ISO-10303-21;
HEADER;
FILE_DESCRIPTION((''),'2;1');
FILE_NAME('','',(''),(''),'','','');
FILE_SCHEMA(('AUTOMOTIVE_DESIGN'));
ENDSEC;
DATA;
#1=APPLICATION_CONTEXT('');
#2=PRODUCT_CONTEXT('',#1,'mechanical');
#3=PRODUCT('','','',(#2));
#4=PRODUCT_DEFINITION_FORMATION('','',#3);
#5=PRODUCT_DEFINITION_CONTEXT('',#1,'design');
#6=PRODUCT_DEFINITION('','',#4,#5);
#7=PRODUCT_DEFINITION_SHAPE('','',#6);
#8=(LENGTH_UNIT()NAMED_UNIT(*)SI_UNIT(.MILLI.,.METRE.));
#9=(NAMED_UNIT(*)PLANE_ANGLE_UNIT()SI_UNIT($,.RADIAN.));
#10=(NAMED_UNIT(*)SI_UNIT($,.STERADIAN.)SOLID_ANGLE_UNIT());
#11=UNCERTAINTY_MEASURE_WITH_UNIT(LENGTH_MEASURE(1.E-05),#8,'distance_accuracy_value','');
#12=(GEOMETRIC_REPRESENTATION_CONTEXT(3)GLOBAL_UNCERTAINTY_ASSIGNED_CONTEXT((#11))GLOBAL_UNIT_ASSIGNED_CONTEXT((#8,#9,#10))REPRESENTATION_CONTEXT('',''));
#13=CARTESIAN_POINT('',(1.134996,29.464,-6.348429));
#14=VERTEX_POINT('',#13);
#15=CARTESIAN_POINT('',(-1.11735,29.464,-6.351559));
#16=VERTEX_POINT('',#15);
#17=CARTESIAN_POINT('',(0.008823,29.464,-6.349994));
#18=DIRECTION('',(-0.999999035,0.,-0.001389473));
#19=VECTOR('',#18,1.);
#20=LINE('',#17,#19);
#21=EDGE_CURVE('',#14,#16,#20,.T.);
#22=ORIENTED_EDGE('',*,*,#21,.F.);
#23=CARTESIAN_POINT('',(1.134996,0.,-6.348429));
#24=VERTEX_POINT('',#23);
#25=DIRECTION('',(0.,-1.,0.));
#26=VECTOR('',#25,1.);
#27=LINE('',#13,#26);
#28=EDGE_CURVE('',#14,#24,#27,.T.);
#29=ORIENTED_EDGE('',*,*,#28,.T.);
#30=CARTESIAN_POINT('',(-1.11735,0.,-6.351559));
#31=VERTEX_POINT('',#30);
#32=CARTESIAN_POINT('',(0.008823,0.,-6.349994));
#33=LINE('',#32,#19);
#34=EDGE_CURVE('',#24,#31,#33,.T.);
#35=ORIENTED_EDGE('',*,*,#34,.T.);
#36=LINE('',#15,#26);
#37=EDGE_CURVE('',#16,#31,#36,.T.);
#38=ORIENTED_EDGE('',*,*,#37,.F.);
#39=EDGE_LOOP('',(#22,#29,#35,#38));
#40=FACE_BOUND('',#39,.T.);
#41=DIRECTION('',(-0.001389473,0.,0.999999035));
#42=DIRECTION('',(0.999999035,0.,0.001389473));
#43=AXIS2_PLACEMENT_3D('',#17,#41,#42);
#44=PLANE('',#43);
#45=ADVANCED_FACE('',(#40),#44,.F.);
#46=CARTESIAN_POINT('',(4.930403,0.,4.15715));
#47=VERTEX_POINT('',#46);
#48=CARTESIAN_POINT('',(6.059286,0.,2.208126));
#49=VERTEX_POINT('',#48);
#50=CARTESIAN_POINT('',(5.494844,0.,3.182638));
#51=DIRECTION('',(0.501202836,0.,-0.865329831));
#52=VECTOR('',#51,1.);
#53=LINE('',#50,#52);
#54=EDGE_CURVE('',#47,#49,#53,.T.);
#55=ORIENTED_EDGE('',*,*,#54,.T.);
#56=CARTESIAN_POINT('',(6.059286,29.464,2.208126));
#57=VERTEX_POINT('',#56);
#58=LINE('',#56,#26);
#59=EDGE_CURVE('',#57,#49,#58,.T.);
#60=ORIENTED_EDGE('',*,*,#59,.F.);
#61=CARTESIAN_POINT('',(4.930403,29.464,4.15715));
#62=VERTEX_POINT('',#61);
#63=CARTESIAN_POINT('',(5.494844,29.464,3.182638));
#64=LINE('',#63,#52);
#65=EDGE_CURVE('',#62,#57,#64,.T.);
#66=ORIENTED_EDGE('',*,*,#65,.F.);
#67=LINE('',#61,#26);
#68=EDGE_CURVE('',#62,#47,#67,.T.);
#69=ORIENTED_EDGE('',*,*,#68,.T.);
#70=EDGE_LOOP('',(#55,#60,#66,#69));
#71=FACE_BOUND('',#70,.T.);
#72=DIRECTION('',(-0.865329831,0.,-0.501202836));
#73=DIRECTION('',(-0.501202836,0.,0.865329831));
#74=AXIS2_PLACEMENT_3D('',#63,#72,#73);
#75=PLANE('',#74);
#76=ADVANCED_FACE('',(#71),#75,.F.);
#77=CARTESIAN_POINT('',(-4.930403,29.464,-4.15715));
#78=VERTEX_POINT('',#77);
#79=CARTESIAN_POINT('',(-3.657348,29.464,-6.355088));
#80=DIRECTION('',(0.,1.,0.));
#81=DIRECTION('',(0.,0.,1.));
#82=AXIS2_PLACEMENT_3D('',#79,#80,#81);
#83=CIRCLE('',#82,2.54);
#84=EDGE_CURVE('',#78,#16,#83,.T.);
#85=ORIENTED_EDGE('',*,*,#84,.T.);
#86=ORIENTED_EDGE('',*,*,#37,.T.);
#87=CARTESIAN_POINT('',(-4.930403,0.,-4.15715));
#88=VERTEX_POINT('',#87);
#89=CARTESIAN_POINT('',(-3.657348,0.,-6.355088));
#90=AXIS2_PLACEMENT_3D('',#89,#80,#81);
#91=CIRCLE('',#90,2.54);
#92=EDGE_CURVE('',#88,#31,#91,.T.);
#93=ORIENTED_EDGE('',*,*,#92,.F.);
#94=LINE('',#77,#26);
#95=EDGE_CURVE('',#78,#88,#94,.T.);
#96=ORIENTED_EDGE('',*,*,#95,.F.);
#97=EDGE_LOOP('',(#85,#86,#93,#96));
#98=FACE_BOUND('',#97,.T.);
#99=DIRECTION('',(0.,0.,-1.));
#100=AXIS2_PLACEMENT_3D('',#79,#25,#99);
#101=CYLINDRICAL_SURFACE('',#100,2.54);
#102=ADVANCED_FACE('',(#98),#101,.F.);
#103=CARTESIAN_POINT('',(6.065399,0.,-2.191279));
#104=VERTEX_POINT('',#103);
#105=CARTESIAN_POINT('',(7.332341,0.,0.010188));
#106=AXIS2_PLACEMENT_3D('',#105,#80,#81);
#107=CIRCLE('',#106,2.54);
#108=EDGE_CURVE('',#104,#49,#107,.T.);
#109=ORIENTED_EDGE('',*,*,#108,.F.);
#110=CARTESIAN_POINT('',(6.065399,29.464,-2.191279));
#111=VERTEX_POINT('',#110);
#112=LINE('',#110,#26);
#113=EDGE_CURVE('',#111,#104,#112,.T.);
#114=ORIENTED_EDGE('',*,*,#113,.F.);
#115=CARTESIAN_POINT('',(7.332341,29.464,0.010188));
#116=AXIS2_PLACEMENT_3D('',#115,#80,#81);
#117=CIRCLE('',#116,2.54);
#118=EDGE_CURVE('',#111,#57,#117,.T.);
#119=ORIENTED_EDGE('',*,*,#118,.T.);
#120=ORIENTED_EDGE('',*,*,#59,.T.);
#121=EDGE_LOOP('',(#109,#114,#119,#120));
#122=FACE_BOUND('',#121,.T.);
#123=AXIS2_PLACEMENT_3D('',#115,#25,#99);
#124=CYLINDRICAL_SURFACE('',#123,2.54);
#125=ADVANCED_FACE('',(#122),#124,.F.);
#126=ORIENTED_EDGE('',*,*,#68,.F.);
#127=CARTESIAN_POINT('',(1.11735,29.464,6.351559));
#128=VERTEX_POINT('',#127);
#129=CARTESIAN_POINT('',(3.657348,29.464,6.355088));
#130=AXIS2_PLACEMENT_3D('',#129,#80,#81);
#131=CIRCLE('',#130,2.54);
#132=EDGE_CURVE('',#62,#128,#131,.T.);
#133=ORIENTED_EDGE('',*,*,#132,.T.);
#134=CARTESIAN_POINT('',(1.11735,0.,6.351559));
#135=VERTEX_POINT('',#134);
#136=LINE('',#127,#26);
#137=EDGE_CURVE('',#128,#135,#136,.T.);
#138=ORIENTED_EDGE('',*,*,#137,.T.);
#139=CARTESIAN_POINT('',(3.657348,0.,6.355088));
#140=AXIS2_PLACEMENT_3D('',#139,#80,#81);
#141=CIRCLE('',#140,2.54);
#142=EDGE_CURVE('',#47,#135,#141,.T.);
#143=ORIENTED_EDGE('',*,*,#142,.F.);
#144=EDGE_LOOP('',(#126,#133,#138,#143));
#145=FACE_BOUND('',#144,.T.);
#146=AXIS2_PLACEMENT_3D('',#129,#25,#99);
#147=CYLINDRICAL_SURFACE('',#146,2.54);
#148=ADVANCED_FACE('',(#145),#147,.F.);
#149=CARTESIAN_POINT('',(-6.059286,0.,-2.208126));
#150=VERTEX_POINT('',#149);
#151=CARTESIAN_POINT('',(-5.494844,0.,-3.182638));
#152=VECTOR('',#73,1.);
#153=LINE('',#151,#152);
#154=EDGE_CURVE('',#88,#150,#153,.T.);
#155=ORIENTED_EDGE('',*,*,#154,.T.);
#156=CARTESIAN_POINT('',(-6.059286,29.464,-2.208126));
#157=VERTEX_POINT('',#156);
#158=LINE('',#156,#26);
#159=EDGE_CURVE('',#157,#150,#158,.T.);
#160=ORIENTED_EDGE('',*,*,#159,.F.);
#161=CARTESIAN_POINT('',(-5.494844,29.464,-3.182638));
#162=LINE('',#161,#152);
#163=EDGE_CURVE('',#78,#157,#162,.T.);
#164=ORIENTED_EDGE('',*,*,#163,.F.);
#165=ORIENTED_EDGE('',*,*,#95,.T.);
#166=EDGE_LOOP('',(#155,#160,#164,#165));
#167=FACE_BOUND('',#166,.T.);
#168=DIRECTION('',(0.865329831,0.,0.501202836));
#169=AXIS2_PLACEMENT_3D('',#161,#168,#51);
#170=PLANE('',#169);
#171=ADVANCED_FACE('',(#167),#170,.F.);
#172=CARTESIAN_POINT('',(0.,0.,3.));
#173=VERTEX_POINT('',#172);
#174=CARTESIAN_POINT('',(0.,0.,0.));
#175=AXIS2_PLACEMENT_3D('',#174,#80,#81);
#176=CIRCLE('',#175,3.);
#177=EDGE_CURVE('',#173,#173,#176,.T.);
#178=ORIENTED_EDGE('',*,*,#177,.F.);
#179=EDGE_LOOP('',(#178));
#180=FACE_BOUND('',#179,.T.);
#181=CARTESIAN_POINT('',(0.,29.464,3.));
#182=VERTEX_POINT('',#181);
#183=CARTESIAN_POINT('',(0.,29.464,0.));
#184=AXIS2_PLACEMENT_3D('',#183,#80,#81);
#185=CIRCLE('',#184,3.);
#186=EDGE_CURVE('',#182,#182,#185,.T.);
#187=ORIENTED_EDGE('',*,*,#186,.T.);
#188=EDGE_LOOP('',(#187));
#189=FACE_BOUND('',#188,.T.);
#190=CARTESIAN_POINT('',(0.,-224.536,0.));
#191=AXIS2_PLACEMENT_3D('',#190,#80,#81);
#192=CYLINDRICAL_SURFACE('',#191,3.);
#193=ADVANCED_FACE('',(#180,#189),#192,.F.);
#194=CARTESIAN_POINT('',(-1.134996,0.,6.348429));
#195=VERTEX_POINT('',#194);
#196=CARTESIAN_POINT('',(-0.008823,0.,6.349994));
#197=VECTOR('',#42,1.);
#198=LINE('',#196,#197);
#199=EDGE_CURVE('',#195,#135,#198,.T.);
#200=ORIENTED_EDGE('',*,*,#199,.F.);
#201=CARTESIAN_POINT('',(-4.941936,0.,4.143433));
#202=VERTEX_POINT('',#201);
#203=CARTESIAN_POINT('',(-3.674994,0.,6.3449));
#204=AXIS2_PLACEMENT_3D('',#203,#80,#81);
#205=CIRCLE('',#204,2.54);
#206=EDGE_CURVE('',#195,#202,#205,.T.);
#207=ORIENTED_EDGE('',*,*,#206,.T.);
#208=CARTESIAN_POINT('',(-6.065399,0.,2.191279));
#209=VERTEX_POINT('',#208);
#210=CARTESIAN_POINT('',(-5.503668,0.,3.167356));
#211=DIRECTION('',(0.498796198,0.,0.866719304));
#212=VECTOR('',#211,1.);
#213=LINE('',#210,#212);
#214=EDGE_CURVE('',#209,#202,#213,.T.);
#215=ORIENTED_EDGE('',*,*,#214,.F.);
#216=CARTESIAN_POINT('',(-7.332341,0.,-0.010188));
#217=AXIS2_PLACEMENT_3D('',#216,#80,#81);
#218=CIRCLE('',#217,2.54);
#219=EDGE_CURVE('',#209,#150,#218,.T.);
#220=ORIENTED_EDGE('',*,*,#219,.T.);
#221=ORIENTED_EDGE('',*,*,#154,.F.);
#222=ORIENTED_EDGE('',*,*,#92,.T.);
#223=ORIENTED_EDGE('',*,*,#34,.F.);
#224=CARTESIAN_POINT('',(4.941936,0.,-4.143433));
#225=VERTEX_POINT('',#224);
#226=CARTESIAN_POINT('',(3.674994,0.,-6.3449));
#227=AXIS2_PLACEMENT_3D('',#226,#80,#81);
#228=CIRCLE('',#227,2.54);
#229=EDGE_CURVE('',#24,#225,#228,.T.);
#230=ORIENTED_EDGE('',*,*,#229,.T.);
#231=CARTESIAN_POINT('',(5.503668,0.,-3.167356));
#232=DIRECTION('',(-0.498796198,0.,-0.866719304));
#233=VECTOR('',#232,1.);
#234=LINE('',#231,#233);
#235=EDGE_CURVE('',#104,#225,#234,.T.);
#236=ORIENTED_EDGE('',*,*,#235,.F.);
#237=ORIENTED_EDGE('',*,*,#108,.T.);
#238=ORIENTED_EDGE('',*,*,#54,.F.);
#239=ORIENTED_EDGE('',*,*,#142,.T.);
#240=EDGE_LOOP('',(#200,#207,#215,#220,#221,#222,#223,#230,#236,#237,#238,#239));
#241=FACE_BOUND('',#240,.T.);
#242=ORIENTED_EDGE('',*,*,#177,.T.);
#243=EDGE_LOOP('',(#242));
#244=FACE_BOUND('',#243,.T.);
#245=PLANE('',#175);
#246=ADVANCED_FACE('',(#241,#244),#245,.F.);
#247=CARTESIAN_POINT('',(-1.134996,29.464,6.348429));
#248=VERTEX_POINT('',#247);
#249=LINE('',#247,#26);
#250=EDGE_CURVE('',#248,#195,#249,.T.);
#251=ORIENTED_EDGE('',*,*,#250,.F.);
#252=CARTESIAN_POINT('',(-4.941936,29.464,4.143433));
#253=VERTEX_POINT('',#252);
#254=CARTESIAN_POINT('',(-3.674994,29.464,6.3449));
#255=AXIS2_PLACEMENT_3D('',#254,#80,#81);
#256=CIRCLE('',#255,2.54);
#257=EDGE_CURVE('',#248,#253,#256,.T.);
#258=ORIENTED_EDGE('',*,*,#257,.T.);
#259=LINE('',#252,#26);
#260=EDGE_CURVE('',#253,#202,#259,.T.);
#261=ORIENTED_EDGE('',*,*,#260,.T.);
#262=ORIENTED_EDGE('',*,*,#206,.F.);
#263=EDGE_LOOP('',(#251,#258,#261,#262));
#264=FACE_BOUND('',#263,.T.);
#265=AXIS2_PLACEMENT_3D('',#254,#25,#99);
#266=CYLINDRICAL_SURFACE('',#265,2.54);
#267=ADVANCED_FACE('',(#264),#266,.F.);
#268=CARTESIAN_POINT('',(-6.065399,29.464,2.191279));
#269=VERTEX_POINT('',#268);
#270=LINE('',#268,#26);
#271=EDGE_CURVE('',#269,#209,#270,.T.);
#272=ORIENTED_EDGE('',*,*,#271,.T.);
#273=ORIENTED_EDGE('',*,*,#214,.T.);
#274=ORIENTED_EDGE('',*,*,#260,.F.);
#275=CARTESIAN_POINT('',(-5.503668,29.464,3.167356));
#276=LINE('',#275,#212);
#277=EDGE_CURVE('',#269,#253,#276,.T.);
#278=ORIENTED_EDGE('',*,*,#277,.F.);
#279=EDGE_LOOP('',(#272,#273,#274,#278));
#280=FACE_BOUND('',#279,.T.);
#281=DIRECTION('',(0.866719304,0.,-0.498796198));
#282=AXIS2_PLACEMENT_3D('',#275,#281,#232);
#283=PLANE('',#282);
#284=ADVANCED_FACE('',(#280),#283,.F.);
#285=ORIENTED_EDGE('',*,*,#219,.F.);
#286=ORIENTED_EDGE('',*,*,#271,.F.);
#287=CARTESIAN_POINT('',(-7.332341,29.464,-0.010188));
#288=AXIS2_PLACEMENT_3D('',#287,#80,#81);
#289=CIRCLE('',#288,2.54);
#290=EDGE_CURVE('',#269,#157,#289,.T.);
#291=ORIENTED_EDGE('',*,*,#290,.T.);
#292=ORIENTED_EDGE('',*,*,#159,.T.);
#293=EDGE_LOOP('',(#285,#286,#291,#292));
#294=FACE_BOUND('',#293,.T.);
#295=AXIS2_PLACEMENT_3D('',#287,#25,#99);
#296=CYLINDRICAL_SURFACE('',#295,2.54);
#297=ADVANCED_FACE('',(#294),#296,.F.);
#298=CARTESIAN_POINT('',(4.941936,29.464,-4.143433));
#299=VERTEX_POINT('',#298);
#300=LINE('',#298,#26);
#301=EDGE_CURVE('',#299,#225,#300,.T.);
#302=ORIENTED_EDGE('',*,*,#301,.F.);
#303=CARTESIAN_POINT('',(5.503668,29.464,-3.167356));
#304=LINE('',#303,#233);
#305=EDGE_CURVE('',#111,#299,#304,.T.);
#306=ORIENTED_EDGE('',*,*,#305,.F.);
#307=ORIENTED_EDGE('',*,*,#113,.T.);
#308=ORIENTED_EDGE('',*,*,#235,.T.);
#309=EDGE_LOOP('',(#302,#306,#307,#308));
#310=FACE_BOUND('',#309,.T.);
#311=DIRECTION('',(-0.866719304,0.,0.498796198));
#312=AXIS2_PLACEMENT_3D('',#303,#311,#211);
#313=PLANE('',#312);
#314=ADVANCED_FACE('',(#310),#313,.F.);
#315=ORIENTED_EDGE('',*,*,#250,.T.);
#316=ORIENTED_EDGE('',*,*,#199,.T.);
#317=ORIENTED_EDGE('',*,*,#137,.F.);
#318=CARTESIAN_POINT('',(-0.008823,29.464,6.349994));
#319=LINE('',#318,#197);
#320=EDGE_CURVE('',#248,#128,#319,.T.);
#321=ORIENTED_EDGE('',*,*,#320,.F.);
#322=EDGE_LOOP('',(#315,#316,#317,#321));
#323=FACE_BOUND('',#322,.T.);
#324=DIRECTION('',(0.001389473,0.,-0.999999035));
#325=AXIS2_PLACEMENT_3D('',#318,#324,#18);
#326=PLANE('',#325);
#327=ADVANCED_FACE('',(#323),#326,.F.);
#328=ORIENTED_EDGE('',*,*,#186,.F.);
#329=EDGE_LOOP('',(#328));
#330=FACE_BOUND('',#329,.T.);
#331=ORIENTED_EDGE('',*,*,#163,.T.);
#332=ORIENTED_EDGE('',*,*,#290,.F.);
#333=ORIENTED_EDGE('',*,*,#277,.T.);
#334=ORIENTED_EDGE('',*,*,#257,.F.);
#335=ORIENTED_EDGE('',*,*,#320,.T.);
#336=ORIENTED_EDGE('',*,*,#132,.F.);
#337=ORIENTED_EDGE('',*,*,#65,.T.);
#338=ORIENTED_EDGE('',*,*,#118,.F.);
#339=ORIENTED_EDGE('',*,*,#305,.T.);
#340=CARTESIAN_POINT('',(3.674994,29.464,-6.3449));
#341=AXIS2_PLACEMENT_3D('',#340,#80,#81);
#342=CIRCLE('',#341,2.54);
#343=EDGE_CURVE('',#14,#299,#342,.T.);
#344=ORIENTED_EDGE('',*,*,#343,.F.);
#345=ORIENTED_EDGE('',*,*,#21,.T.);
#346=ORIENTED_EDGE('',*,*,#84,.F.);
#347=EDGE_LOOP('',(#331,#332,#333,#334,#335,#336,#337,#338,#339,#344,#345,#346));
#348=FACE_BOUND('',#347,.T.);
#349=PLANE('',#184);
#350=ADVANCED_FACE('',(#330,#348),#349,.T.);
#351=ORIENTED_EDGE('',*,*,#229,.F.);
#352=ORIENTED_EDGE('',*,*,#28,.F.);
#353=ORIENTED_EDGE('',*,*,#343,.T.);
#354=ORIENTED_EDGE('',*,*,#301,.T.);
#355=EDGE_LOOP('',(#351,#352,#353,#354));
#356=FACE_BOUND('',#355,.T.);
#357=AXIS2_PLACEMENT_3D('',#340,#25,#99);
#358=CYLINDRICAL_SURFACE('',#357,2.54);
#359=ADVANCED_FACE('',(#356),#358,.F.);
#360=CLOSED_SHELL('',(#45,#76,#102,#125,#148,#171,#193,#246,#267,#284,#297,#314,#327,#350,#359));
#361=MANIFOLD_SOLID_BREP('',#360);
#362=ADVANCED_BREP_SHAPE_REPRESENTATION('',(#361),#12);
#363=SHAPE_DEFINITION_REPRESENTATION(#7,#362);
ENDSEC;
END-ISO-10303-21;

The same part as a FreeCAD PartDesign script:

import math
import FreeCAD as App
import Part
import Sketcher

V = App.Vector
Q = App.Units.Quantity

doc = App.newDocument("Part")
body = doc.addObject("PartDesign::Body", "Body")

# Sketch on XZ plane
sketch1 = body.newObject("Sketcher::SketchObject", "Sketch")
sketch1.AttachmentSupport = (doc.getObject("XZ_Plane"), [""])
sketch1.MapMode = "FlatFace"
sketch1.addGeometry([
    Part.ArcOfCircle(Part.Circle(V(3.6573, 6.3551, 0), V(0, 0, 1), 2.54), math.radians(-180), math.radians(-60)),  # 0
    Part.LineSegment(V(4.9304, 4.1572, 0), V(6.0593, 2.2081, 0)),  # 1
    Part.ArcOfCircle(Part.Circle(V(7.3323, 0.0102, 0), V(0, 0, 1), 2.54), math.radians(120), math.radians(240)),  # 2
    Part.LineSegment(V(6.0654, -2.1913, 0), V(4.9419, -4.1434, 0)),  # 3
    Part.ArcOfCircle(Part.Circle(V(3.675, -6.3449, 0), V(0, 0, 1), 2.54), math.radians(60), math.radians(180)),  # 4
    Part.LineSegment(V(1.135, -6.3484, 0), V(-1.1173, -6.3516, 0)),  # 5
    Part.ArcOfCircle(Part.Circle(V(-3.6573, -6.3551, 0), V(0, 0, 1), 2.54), math.radians(0), math.radians(120)),  # 6
    Part.LineSegment(V(-4.9304, -4.1572, 0), V(-6.0593, -2.2081, 0)),  # 7
    Part.ArcOfCircle(Part.Circle(V(-7.3323, -0.0102, 0), V(0, 0, 1), 2.54), math.radians(-60), math.radians(0)),  # 8
    Part.ArcOfCircle(Part.Circle(V(-7.3323, -0.0102, 0), V(0, 0, 1), 2.54), math.radians(0), math.radians(60)),  # 9
    Part.LineSegment(V(-6.0654, 2.1913, 0), V(-4.9419, 4.1434, 0)),  # 10
    Part.ArcOfCircle(Part.Circle(V(-3.675, 6.3449, 0), V(0, 0, 1), 2.54), math.radians(-120), math.radians(0)),  # 11
    Part.ArcOfCircle(Part.Circle(V(-3.6749, 6.3449, 0), V(0, 0, 1), 2.5399), math.radians(0), math.radians(0.08)),  # 12
    Part.LineSegment(V(-1.135, 6.3484, 0), V(1.1173, 6.3516, 0)),  # 13
], False)
sketch1.addConstraint([
    Sketcher.Constraint("Coincident", 0, 2, 1, 1),
    Sketcher.Constraint("Coincident", 1, 2, 2, 1),
    Sketcher.Constraint("Coincident", 2, 2, 3, 1),
    Sketcher.Constraint("Coincident", 3, 2, 4, 1),
    Sketcher.Constraint("Coincident", 4, 2, 5, 1),
    Sketcher.Constraint("Coincident", 5, 2, 6, 1),
    Sketcher.Constraint("Coincident", 6, 2, 7, 1),
    Sketcher.Constraint("Coincident", 7, 2, 8, 1),
    Sketcher.Constraint("Tangent", 8, 2, 9, 1),
    Sketcher.Constraint("Coincident", 9, 2, 10, 1),
    Sketcher.Constraint("Coincident", 10, 2, 11, 1),
    Sketcher.Constraint("Tangent", 11, 2, 12, 1),
    Sketcher.Constraint("Coincident", 12, 2, 13, 1),
    Sketcher.Constraint("Coincident", 13, 2, 0, 1),
    Sketcher.Constraint("Equal", 0, 2),
    Sketcher.Constraint("Equal", 2, 4),
    Sketcher.Constraint("Equal", 4, 6),
    Sketcher.Constraint("Equal", 6, 8),
    Sketcher.Constraint("Equal", 8, 9),
    Sketcher.Constraint("Equal", 9, 11),
    Sketcher.Constraint("Symmetric", 0, 3, 6, 3, -1, 1),
    Sketcher.Constraint("Symmetric", 2, 3, 8, 3, -1, 1),
    Sketcher.Constraint("Symmetric", 4, 3, 11, 3, -1, 1),
    Sketcher.Constraint("Parallel", 1, 7),
    Sketcher.Constraint("Parallel", 3, 10),
    Sketcher.Constraint("Parallel", 5, 13),
    Sketcher.Constraint("Horizontal", 9, 3, 8, 2),
    Sketcher.Constraint("Horizontal", 12, 3, 11, 2),
    Sketcher.Constraint("Equal", 1, 3),
    Sketcher.Constraint("Equal", 3, 5),
    Sketcher.Constraint("Radius", 0, Q("0.1 in")),
    Sketcher.Constraint("Radius", 12, 2.539903),
    Sketcher.Constraint("DistanceY", 4, 3, -1, 1, 6.3449),
    Sketcher.Constraint("DistanceX", -1, 1, 2, 2, 6.065399),
    Sketcher.Constraint("DistanceX", 9, 2, -1, 1, 6.065399),
    Sketcher.Constraint("DistanceY", 2, 3, 0, 3, 6.3449),
    Sketcher.Constraint("DistanceX", 12, 3, 0, 2, 8.6053),
    Sketcher.Constraint("DistanceX", 6, 2, 4, 2, 6.065399),
    Sketcher.Constraint("Distance", 1, 2.252348),
    Sketcher.Constraint("DistanceX", -1, 1, 2, 3, 7.332341),
    Sketcher.Constraint("DistanceY", 4, 2, -1, 1, 6.348429),
    Sketcher.Constraint("DistanceY", 5, 2, -1, 1, 6.351559),
    Sketcher.Constraint("DistanceY", -1, 1, 12, 2, 6.348429),
    Sketcher.Constraint("DistanceX", 0, 3, 1, 2, 2.401939),
    Sketcher.Constraint("DistanceY", 3, 2, 2, 3, 4.153621),
])
pad1 = body.newObject("PartDesign::Pad", "Pad")
pad1.Profile = sketch1
pad1.Length = Q("1.16 in")
pad1.Reversed = True

# Sketch on XZ plane
sketch2 = body.newObject("Sketcher::SketchObject", "Sketch001")
sketch2.AttachmentSupport = (doc.getObject("XZ_Plane"), [""])
sketch2.MapMode = "FlatFace"
sketch2.AttachmentOffset = App.Placement(V(0, 0, -1.16 * 25.4), App.Rotation())
sketch2.addGeometry(Part.Circle(V(0, 0, 0), V(0, 0, 1), 3), False)
sketch2.addConstraint([
    Sketcher.Constraint("Coincident", 0, 3, -1, 1),
    Sketcher.Constraint("Diameter", 0, 6.0),
])
pocket1 = body.newObject("PartDesign::Pocket", "Pocket")
pocket1.Profile = sketch2
pocket1.Length = Q("10 in")
pocket1.Reversed = True

doc.recompute()
